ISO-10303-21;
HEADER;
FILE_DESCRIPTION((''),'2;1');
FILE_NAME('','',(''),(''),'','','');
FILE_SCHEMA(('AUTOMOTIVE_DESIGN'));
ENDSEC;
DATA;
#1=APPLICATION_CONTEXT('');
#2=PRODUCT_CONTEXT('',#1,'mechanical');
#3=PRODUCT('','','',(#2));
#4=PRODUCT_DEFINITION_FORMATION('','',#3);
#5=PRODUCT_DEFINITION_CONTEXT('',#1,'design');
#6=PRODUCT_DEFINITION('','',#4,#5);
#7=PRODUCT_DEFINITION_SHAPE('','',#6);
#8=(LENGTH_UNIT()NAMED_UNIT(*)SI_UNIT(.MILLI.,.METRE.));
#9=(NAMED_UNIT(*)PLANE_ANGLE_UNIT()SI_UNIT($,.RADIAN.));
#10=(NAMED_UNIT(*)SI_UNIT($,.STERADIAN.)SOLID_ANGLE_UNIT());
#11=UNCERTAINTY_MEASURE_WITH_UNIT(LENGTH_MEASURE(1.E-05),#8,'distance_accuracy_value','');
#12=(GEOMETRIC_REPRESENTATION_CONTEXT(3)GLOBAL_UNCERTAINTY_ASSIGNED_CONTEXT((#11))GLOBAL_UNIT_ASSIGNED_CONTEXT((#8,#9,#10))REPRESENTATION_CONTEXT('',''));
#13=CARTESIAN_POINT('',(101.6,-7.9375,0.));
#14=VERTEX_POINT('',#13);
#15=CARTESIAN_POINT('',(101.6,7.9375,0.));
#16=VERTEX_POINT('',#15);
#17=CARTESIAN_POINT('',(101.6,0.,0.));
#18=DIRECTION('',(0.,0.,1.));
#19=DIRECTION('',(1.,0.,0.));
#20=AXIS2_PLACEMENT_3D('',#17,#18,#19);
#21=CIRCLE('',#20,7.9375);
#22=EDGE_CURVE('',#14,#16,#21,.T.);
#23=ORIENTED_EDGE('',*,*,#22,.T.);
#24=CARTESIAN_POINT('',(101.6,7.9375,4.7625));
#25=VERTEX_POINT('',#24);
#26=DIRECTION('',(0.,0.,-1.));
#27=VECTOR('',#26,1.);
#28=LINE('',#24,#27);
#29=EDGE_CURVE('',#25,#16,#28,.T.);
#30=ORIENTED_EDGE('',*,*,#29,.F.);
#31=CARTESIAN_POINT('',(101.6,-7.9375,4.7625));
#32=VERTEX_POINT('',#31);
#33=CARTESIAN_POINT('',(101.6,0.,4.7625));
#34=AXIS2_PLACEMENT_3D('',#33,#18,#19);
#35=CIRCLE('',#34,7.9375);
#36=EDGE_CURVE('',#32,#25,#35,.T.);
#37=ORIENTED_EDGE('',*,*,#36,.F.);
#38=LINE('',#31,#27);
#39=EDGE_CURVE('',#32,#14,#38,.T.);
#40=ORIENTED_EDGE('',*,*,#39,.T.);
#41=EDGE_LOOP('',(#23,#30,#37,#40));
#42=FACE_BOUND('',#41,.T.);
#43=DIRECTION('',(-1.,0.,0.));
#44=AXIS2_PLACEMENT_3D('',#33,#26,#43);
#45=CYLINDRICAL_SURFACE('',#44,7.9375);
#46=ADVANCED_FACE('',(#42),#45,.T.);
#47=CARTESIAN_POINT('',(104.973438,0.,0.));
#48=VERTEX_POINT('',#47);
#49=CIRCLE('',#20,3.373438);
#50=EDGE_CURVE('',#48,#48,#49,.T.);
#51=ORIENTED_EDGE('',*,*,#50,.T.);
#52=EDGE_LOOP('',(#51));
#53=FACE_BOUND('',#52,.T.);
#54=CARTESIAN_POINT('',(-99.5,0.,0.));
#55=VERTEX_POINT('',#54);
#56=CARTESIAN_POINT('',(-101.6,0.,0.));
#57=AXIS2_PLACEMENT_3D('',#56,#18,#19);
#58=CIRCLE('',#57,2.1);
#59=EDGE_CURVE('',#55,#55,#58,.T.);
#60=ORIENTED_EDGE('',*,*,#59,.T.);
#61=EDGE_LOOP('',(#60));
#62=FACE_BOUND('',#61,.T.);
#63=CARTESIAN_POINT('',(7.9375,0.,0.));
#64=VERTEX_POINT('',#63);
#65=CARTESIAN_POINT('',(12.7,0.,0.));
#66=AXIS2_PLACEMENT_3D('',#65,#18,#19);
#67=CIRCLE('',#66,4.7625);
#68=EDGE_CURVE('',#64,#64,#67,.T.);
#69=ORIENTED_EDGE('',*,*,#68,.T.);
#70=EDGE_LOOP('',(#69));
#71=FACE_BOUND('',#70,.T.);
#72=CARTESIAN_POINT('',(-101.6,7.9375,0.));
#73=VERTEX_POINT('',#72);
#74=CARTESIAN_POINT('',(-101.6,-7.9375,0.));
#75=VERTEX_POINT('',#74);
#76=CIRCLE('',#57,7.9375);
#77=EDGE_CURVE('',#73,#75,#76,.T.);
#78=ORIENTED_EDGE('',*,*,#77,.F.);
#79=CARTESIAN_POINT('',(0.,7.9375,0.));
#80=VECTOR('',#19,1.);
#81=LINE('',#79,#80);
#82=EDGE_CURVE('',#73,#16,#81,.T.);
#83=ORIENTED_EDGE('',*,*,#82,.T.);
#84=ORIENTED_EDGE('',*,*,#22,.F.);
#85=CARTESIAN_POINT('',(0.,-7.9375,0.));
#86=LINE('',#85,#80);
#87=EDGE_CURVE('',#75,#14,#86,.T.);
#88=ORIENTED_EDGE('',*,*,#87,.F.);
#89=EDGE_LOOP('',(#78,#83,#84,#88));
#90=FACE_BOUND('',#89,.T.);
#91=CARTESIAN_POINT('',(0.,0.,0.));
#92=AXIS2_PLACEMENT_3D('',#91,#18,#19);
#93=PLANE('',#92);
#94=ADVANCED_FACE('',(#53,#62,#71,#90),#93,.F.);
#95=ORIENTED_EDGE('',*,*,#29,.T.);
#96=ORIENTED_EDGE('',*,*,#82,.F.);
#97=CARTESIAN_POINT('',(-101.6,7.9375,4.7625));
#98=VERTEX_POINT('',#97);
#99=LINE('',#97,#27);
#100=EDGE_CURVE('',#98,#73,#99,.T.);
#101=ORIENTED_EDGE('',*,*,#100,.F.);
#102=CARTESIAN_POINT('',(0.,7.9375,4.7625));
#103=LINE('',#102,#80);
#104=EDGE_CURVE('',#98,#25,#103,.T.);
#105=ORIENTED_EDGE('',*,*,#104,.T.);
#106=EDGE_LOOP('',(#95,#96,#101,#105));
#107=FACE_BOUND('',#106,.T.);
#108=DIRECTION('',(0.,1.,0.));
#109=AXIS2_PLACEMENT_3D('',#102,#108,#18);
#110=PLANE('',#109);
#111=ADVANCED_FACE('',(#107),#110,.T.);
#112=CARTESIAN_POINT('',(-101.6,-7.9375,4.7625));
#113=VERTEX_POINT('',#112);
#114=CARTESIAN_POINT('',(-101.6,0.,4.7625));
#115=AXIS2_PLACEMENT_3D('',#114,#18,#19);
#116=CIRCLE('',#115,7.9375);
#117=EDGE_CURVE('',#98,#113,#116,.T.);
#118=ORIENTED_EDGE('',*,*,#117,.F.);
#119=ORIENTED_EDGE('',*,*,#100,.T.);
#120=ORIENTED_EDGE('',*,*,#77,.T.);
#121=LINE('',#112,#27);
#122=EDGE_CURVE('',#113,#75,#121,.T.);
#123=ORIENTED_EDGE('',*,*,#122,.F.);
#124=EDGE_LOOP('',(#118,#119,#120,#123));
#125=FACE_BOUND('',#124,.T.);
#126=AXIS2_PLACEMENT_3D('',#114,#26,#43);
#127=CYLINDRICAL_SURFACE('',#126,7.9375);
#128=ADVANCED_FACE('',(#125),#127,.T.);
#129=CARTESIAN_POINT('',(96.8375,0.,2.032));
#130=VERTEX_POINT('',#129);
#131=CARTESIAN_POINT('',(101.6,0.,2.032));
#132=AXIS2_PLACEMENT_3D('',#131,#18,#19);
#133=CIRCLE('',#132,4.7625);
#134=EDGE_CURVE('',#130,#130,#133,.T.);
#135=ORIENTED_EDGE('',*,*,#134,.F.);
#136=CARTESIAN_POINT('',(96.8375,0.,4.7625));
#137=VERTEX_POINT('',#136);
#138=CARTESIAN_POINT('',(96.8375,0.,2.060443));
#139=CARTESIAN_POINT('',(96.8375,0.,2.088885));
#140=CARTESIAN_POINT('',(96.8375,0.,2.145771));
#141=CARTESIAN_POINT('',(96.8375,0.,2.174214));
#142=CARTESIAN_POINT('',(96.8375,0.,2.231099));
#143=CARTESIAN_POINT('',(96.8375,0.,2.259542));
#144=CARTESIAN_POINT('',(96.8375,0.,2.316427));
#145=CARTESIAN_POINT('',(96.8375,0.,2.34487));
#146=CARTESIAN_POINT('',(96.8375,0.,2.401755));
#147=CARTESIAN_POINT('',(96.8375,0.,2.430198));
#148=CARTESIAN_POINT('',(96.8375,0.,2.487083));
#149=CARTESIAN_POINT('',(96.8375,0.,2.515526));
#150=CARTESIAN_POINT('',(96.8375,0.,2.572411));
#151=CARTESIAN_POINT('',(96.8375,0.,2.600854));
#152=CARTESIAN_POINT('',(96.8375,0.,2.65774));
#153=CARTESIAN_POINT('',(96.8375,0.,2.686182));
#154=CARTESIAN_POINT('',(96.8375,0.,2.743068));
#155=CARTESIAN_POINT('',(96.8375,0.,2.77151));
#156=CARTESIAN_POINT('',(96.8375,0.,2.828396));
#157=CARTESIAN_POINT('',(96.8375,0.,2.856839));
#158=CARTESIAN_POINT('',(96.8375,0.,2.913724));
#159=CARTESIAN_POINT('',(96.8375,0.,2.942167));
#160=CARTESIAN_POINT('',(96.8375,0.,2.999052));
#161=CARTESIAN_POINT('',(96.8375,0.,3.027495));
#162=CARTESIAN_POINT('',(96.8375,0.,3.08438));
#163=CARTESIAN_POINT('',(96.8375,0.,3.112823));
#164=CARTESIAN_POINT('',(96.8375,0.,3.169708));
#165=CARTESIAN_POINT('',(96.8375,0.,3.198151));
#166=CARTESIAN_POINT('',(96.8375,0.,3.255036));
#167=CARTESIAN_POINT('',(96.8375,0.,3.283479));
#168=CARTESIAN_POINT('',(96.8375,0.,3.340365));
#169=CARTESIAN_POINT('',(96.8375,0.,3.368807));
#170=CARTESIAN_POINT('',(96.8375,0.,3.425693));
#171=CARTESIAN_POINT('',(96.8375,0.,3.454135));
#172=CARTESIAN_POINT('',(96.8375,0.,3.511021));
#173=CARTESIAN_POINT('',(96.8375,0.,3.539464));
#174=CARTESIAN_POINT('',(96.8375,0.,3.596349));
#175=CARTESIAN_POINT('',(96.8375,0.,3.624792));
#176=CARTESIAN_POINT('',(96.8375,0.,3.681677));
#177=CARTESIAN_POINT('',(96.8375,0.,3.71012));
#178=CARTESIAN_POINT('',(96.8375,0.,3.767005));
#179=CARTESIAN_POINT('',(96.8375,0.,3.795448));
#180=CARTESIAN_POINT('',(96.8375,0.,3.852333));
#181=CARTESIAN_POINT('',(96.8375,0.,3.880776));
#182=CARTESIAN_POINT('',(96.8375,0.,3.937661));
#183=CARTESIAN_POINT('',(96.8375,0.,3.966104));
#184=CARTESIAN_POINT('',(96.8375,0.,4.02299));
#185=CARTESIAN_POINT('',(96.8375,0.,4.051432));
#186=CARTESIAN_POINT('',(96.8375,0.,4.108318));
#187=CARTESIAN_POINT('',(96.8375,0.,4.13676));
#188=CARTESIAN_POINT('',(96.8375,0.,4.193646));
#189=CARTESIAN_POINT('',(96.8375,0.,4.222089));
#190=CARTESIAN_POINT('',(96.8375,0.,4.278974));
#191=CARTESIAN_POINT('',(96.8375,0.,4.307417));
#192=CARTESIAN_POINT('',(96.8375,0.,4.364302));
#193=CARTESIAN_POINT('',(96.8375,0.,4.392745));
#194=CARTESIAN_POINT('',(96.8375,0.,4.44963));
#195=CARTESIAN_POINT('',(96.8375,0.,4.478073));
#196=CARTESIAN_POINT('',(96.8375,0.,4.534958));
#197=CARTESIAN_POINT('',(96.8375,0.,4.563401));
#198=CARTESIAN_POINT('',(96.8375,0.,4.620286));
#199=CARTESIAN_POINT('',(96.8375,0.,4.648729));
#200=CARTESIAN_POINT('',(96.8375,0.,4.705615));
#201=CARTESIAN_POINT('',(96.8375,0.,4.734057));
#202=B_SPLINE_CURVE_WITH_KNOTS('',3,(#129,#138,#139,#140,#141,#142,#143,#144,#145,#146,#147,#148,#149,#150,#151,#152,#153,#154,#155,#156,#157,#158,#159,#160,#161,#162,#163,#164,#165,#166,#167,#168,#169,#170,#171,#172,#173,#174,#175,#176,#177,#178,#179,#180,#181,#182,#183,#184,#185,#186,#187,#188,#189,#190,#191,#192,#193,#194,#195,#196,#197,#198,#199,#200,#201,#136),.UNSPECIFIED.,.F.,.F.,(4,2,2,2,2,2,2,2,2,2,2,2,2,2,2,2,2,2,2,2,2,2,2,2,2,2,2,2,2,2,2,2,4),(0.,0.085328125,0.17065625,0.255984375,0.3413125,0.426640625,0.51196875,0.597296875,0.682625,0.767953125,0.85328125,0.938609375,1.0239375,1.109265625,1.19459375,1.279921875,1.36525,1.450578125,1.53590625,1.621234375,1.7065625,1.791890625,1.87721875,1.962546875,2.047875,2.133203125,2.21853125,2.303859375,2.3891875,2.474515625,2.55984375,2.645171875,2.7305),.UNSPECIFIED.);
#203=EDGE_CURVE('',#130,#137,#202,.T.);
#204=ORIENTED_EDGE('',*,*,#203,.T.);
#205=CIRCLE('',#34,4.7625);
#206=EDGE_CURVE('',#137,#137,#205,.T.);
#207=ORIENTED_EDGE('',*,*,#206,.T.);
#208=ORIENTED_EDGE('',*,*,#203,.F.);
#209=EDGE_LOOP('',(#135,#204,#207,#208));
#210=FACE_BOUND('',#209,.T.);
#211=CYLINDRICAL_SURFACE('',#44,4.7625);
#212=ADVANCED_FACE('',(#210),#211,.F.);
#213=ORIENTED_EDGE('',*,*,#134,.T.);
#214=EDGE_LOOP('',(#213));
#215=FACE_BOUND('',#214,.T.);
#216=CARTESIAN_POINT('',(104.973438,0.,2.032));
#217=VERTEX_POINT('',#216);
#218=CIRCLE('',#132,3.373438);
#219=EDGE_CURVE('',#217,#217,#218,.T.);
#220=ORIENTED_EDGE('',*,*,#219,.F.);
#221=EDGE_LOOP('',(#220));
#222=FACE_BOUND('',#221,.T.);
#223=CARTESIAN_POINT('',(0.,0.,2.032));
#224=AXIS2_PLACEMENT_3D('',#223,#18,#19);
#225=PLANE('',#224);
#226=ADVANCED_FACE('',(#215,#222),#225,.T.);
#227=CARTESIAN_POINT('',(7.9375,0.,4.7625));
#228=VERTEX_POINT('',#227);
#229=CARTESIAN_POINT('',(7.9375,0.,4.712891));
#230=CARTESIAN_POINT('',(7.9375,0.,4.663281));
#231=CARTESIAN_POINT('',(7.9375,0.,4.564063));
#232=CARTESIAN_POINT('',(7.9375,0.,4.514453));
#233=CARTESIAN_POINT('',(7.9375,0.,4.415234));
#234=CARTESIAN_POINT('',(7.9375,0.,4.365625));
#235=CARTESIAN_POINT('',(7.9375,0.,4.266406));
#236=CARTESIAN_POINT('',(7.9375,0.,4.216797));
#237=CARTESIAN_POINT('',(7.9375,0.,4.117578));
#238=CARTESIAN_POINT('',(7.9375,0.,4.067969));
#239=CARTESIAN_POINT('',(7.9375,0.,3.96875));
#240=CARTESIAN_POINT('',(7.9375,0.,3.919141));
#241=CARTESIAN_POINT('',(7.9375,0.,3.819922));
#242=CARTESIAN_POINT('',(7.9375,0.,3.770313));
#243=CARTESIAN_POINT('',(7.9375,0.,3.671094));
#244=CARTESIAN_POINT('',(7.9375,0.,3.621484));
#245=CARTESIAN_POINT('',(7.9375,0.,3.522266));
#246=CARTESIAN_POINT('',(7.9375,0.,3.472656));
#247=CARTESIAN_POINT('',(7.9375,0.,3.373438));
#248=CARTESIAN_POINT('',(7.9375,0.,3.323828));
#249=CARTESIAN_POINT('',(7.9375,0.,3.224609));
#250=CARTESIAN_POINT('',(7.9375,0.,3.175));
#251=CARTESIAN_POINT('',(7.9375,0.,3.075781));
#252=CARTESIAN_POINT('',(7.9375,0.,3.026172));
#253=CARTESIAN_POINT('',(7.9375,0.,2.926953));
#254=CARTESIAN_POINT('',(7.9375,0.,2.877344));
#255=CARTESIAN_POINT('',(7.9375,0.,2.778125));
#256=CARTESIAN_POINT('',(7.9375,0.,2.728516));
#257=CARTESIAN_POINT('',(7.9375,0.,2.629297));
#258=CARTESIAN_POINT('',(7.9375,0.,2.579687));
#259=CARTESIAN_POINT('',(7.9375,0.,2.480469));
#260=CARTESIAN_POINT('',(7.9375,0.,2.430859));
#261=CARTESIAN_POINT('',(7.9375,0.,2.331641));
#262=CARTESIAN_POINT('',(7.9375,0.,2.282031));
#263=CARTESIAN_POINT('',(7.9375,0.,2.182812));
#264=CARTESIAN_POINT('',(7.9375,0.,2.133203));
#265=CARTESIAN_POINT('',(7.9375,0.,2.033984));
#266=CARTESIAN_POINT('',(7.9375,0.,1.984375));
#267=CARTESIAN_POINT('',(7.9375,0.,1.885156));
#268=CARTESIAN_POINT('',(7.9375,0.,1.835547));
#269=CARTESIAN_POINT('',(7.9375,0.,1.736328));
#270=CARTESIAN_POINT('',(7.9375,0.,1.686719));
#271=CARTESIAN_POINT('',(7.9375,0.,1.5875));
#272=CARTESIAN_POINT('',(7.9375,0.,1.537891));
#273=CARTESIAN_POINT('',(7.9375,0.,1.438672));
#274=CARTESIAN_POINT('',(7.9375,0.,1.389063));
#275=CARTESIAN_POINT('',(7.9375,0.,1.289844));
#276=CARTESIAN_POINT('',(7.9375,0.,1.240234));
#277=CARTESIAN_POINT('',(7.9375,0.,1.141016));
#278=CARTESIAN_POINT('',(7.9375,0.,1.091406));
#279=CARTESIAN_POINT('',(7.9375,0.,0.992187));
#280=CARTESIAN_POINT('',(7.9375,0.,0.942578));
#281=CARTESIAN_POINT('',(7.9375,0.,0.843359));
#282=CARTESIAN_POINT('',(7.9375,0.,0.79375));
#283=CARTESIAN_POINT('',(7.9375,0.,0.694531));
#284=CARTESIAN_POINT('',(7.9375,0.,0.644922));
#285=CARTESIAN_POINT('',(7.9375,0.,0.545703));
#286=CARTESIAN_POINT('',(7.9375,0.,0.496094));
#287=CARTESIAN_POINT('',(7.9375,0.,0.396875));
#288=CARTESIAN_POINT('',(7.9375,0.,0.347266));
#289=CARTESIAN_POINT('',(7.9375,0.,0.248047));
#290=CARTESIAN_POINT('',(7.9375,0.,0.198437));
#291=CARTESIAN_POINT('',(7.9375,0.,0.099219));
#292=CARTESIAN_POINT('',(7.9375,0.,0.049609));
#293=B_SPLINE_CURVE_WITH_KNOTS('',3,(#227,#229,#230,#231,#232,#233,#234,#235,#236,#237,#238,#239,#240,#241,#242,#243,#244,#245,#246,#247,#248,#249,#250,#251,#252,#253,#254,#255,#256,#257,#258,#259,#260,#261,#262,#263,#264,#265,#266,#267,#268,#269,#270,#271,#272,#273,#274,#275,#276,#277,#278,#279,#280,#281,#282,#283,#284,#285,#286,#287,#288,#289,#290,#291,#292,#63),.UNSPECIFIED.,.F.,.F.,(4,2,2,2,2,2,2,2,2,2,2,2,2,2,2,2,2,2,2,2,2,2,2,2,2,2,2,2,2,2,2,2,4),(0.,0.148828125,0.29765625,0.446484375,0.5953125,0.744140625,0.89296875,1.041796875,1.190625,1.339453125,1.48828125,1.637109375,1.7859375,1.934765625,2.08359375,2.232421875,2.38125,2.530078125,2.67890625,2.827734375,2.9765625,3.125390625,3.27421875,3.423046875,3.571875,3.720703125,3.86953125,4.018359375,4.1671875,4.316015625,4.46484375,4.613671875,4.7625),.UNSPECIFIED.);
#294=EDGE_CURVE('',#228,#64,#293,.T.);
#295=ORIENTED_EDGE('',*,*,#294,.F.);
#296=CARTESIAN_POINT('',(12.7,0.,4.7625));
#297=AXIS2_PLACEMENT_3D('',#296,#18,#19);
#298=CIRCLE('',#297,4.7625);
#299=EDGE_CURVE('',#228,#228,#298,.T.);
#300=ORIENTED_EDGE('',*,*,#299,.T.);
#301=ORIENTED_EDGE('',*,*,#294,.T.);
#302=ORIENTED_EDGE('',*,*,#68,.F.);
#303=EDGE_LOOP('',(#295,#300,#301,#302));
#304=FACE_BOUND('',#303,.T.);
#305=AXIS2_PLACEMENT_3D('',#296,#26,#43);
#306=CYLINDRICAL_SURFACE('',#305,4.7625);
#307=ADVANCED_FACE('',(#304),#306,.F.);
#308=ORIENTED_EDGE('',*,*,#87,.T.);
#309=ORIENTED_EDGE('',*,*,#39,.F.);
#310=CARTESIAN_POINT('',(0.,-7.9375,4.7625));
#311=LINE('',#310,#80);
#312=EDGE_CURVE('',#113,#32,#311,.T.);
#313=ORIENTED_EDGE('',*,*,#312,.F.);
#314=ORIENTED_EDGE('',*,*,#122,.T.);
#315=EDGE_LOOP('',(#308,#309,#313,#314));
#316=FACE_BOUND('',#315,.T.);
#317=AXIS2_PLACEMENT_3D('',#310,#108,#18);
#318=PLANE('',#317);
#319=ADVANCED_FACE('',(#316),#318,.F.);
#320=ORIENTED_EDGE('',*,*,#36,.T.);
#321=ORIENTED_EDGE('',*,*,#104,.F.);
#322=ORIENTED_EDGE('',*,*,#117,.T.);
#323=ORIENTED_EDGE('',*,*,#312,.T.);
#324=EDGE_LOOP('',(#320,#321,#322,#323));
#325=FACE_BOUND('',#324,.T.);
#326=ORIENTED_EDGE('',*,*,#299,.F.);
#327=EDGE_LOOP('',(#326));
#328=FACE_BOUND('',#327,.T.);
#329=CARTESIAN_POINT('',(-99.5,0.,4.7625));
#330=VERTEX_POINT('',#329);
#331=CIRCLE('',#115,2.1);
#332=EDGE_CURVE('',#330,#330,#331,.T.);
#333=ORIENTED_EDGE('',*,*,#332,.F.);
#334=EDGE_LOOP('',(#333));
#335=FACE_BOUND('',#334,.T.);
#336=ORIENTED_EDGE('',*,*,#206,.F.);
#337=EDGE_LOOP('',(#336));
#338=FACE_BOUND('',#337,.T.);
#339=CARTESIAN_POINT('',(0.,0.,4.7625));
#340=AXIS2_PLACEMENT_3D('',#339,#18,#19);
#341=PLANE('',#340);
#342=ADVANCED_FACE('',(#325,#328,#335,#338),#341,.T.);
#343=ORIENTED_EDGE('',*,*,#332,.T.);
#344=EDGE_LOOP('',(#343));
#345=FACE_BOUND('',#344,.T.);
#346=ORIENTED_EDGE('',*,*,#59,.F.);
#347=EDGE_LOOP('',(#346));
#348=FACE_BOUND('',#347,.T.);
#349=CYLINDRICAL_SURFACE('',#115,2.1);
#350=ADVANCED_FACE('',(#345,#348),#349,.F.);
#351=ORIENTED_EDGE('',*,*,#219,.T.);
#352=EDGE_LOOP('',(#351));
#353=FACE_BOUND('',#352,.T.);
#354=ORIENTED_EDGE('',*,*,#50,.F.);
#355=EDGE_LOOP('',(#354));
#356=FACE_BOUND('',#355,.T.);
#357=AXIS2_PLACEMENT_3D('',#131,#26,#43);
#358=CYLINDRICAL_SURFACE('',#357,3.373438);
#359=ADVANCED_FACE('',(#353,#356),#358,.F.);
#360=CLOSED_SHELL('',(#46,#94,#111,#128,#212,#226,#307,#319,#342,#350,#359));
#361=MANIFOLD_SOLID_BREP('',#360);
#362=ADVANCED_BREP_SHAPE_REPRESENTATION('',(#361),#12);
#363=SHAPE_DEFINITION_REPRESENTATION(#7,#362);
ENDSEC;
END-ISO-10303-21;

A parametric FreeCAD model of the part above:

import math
import FreeCAD as App
import Part
import Sketcher

V = App.Vector
Q = App.Units.Quantity

doc = App.newDocument("Part")
body = doc.addObject("PartDesign::Body", "Body")

sketch1 = body.newObject("Sketcher::SketchObject", "Sketch")
sketch1.AttachmentSupport = (doc.getObject("XY_Plane"), [""])
sketch1.MapMode = "FlatFace"
sketch1.addGeometry([
    Part.LineSegment(V(101.6, 7.9, 0), V(-101.6, 7.9, 0)),
    Part.ArcOfCircle(Part.Circle(V(-101.6, 0, 0), V(0, 0, 1), 7.9), math.radians(90), math.radians(270)),
    Part.LineSegment(V(-101.6, -7.9, 0), V(101.6, -7.9, 0)),
    Part.ArcOfCircle(Part.Circle(V(101.6, 0, 0), V(0, 0, 1), 7.9), math.radians(-90), math.radians(90)),
    Part.Circle(V(101.6, 0, 0), V(0, 0, 1), 4.8),
    Part.Circle(V(12.7, 0, 0), V(0, 0, 1), 4.8),
], False)
sketch1.addConstraint([
    Sketcher.Constraint("Tangent", 0, 2, 1, 1),
    Sketcher.Constraint("Tangent", 1, 2, 2, 1),
    Sketcher.Constraint("Tangent", 2, 2, 3, 1),
    Sketcher.Constraint("Tangent", 3, 2, 0, 1),
    Sketcher.Constraint("Horizontal", 0),
    Sketcher.Constraint("Horizontal", 2),
    Sketcher.Constraint("Coincident", 4, 3, 3, 3),
    Sketcher.Constraint("Equal", 4, 5),
    Sketcher.Constraint("Symmetric", 1, 3, 3, 3, -1, 1),
    Sketcher.Constraint("PointOnObject", 5, 3, -1),
    Sketcher.Constraint("DistanceX", 0, 2, 0, 1, Q("8 in")),
    Sketcher.Constraint("Diameter", 4, Q("0.375 in")),
    Sketcher.Constraint("Radius", 1, Q("0.3125 in")),
    Sketcher.Constraint("DistanceX", -1, 1, 5, 3, Q("0.5 in")),
])
pad1 = body.newObject("PartDesign::Pad", "Pad")
pad1.Profile = sketch1
pad1.Length = Q("0.1875 in")

sketch2 = body.newObject("Sketcher::SketchObject", "Sketch001")
sketch2.AttachmentSupport = (doc.getObject("XY_Plane"), [""])
sketch2.MapMode = "FlatFace"
sketch2.addGeometry([
    Part.Circle(V(101.6, 0, 0), V(0, 0, 1), 4.8),
    Part.Circle(V(101.6, 0, 0), V(0, 0, 1), 3.4),
], False)
sketch2.addConstraint([
    Sketcher.Constraint("Coincident", 1, 3, 0, 3),
    Sketcher.Constraint("PointOnObject", 0, 3, -1),
    Sketcher.Constraint("Diameter", 0, Q("0.375 in")),
    Sketcher.Constraint("Diameter", 1, Q("0.265625 in")),
    Sketcher.Constraint("DistanceX", -1, 1, 0, 3, Q("4 in")),
])
pad2 = body.newObject("PartDesign::Pad", "Pad001")
pad2.Profile = sketch2
pad2.Length = Q("0.08 in")

sketch3 = body.newObject("Sketcher::SketchObject", "Sketch002")
sketch3.AttachmentSupport = (doc.getObject("XY_Plane"), [""])
sketch3.MapMode = "FlatFace"
sketch3.AttachmentOffset = App.Placement(V(0, 0, 0.1875 * 25.4), App.Rotation())
sketch3.addGeometry(Part.Circle(V(-101.6, 0, 0), V(0, 0, 1), 2.1), False)
sketch3.addConstraint([
    Sketcher.Constraint("PointOnObject", 0, 3, -1),
    Sketcher.Constraint("DistanceX", 0, 3, -1, 1, Q("4 in")),
    Sketcher.Constraint("Diameter", 0, Q("4.2 mm")),
])
doc.recompute()
hole = body.newObject("PartDesign::Hole", "Hole")
hole.Profile = sketch3
hole.ThreadType = "None"
hole.Diameter = 4.2
hole.DepthType = "Dimension"
hole.Depth = 11.133393
hole.DrillPoint = "Angled"
hole.DrillPointAngle = 118

doc.recompute()
